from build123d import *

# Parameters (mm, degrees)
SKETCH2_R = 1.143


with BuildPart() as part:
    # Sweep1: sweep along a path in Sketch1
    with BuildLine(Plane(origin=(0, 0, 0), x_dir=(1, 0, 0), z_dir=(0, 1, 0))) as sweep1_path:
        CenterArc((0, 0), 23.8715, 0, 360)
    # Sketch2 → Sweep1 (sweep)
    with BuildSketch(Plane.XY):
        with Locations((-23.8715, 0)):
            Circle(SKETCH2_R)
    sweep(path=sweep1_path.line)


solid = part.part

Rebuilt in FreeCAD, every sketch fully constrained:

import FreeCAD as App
import Part
import Sketcher

V = App.Vector
Q = App.Units.Quantity

doc = App.newDocument("Part")
params = doc.addObject("Spreadsheet::Sheet", "Params")
for row, (alias, value) in enumerate([
    ("sketch1_diameter", "0.09 in"),
], start=1):
    params.set(f"A{row}", alias)
    params.set(f"B{row}", "=" + value)
    params.setAlias(f"B{row}", alias)

body = doc.addObject("PartDesign::Body", "Body")

# Sketch on XY plane
sketch1 = body.newObject("Sketcher::SketchObject", "Sketch")
sketch1.AttachmentSupport = (doc.getObject("XY_Plane"), [""])
sketch1.MapMode = "FlatFace"
sketch1.addGeometry(Part.Circle(V(-23.9, 0, 0), V(0, 0, 1), 1.1), False)
sketch1.addConstraint(Sketcher.Constraint("PointOnObject", 0, 3, -1))
sketch1.addConstraint(Sketcher.Constraint("Diameter", 0, Q("0.09 in")))
sketch1.addConstraint(Sketcher.Constraint("DistanceX", 0, 3, -1, 1, Q("23.8715 mm")))
sketch1.setExpression("Constraints[1]", "Params.sketch1_diameter")

# Sketch on XZ plane
sketch2 = body.newObject("Sketcher::SketchObject", "Sketch001")
sketch2.AttachmentSupport = (doc.getObject("XZ_Plane"), [""])
sketch2.MapMode = "FlatFace"
sketch2.addGeometry(Part.Circle(V(0, 0, 0), V(0, 0, 1), 24), False)
sketch2.addConstraint(Sketcher.Constraint("Coincident", 0, 3, -1, 1))
sketch2.addConstraint(Sketcher.Constraint("Diameter", 0, Q("47.743 mm")))
doc.recompute()

additivepipe = body.newObject("PartDesign::AdditivePipe", "AdditivePipe")
additivepipe.Profile = sketch1
additivepipe.Spine = (sketch2, ["Edge1"])

doc.recompute()
